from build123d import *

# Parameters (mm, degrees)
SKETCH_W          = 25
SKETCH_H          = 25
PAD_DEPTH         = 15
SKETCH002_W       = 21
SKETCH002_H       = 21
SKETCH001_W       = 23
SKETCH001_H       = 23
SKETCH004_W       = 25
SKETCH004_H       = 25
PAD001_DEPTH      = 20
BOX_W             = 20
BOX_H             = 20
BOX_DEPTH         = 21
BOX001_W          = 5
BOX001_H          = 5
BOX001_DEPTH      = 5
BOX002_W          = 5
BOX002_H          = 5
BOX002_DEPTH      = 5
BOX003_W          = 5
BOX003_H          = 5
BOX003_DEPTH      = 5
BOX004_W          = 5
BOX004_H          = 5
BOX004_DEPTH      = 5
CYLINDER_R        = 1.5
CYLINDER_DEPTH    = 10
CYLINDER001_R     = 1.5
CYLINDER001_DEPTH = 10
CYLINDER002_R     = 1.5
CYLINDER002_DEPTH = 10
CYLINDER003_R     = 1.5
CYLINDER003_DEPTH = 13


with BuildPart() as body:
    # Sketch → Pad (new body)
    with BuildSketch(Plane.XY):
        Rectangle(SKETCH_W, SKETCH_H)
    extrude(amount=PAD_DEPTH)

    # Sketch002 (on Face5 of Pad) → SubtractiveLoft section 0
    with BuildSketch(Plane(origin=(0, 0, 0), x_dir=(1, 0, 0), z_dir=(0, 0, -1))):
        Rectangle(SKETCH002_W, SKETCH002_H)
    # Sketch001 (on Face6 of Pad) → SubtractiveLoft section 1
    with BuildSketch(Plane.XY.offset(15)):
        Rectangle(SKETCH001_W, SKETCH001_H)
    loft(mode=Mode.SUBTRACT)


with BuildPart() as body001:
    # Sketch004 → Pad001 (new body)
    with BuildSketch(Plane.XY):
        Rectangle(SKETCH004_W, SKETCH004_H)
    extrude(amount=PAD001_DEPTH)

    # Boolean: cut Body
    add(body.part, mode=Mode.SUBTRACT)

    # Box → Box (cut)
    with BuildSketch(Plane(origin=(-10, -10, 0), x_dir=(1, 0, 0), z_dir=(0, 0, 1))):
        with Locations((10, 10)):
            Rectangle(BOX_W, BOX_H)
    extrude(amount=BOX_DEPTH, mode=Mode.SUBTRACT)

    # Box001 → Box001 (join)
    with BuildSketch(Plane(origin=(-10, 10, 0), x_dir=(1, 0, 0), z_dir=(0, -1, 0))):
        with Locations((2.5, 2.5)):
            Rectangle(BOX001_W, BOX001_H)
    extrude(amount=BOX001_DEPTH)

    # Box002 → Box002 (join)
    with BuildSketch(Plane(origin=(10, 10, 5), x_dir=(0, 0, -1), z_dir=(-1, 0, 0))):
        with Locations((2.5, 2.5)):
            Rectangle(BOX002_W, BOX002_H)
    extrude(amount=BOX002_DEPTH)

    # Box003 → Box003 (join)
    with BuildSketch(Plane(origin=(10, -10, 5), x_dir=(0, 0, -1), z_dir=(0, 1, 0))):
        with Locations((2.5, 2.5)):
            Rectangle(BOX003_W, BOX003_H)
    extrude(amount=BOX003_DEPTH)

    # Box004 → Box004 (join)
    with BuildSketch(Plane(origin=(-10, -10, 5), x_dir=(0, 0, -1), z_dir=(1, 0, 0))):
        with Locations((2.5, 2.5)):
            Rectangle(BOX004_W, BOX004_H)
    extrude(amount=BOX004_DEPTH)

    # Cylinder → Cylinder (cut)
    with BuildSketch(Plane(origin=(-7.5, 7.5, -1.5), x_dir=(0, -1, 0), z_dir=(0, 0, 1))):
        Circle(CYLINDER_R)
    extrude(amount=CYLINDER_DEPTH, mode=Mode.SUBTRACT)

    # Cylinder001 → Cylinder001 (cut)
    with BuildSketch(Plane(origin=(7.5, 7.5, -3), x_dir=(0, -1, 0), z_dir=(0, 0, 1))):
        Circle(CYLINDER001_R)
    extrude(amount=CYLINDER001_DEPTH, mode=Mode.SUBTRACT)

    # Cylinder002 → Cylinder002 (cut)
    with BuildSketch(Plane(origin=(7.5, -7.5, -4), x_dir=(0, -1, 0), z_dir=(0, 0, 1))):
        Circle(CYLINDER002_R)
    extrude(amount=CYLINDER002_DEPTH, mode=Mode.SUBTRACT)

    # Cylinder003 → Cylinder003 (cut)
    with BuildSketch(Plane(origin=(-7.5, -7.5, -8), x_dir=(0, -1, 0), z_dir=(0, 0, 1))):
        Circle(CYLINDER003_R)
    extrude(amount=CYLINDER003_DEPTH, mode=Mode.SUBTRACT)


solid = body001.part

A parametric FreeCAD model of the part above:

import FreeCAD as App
import Part
import Sketcher

doc = App.newDocument("Part")
body = doc.addObject("PartDesign::Body", "Body")

# Sketch on XY plane
sketch1 = body.newObject("Sketcher::SketchObject", "Sketch")
sketch1.AttachmentSupport = (doc.getObject("XY_Plane"), [""])
sketch1.MapMode = "FlatFace"
sketch1.addGeometry([
    Part.LineSegment(App.Vector(-12, 12, 0), App.Vector(-12, -12, 0)),
    Part.LineSegment(App.Vector(-12, -12, 0), App.Vector(12, -12, 0)),
    Part.LineSegment(App.Vector(12, -12, 0), App.Vector(12, 12, 0)),
    Part.LineSegment(App.Vector(12, 12, 0), App.Vector(-12, 12, 0)),
], False)
sketch1.addConstraint([
    Sketcher.Constraint("Coincident", 0, 2, 1, 1),
    Sketcher.Constraint("Coincident", 1, 2, 2, 1),
    Sketcher.Constraint("Coincident", 2, 2, 3, 1),
    Sketcher.Constraint("Coincident", 3, 2, 0, 1),
    Sketcher.Constraint("Vertical", 0),
    Sketcher.Constraint("Horizontal", 1),
    Sketcher.Constraint("Vertical", 2),
    Sketcher.Constraint("Horizontal", 3),
    Sketcher.Constraint("Symmetric", 0, 2, 2, 2, -1, 1),
    Sketcher.Constraint("Equal", 3, 0),
    Sketcher.Constraint("DistanceX", 1, 1, 1, 2, 25.0),
])
pad1 = body.newObject("PartDesign::Pad", "Pad")
pad1.Profile = sketch1
pad1.Length = 15

# Sketch on XY plane
sketch2 = body.newObject("Sketcher::SketchObject", "Sketch001")
sketch2.AttachmentSupport = (doc.getObject("XY_Plane"), [""])
sketch2.MapMode = "FlatFace"
sketch2.addGeometry([
    Part.LineSegment(App.Vector(-10, -10, 0), App.Vector(-10, 10, 0)),
    Part.LineSegment(App.Vector(-10, 10, 0), App.Vector(10, 10, 0)),
    Part.LineSegment(App.Vector(10, 10, 0), App.Vector(10, -10, 0)),
    Part.LineSegment(App.Vector(10, -10, 0), App.Vector(-10, -10, 0)),
], False)
sketch2.addConstraint([
    Sketcher.Constraint("Coincident", 0, 2, 1, 1),
    Sketcher.Constraint("Coincident", 1, 2, 2, 1),
    Sketcher.Constraint("Coincident", 2, 2, 3, 1),
    Sketcher.Constraint("Coincident", 3, 2, 0, 1),
    Sketcher.Constraint("Vertical", 0),
    Sketcher.Constraint("Horizontal", 1),
    Sketcher.Constraint("Vertical", 2),
    Sketcher.Constraint("Horizontal", 3),
    Sketcher.Constraint("Symmetric", 0, 2, 2, 2, -1, 1),
    Sketcher.Constraint("Equal", 3, 0),
    Sketcher.Constraint("DistanceX", 1, 1, 1, 2, 21.0),
])

# Sketch on XY plane
sketch3 = body.newObject("Sketcher::SketchObject", "Sketch002")
sketch3.AttachmentSupport = (doc.getObject("XY_Plane"), [""])
sketch3.MapMode = "FlatFace"
sketch3.AttachmentOffset = App.Placement(App.Vector(0, 0, 15), App.Rotation())
sketch3.addGeometry([
    Part.LineSegment(App.Vector(-12, 12, 0), App.Vector(-12, -12, 0)),
    Part.LineSegment(App.Vector(-12, -12, 0), App.Vector(12, -12, 0)),
    Part.LineSegment(App.Vector(12, -12, 0), App.Vector(12, 12, 0)),
    Part.LineSegment(App.Vector(12, 12, 0), App.Vector(-12, 12, 0)),
], False)
sketch3.addConstraint([
    Sketcher.Constraint("Coincident", 0, 2, 1, 1),
    Sketcher.Constraint("Coincident", 1, 2, 2, 1),
    Sketcher.Constraint("Coincident", 2, 2, 3, 1),
    Sketcher.Constraint("Coincident", 3, 2, 0, 1),
    Sketcher.Constraint("Vertical", 0),
    Sketcher.Constraint("Horizontal", 1),
    Sketcher.Constraint("Vertical", 2),
    Sketcher.Constraint("Horizontal", 3),
    Sketcher.Constraint("Symmetric", 0, 2, 2, 2, -1, 1),
    Sketcher.Constraint("Equal", 3, 0),
    Sketcher.Constraint("DistanceX", 1, 1, 1, 2, 23.0),
])

subtractiveloft = body.newObject("PartDesign::SubtractiveLoft", "SubtractiveLoft")
subtractiveloft.Profile = sketch2
subtractiveloft.Sections = [sketch3]
body2 = doc.addObject("PartDesign::Body", "Body001")

# Sketch on XY plane
sketch4 = body2.newObject("Sketcher::SketchObject", "Sketch003")
sketch4.AttachmentSupport = (doc.getObject("XY_Plane001"), [""])
sketch4.MapMode = "FlatFace"
sketch4.addGeometry([
    Part.LineSegment(App.Vector(-12, 12, 0), App.Vector(-12, -12, 0)),
    Part.LineSegment(App.Vector(-12, -12, 0), App.Vector(12, -12, 0)),
    Part.LineSegment(App.Vector(12, -12, 0), App.Vector(12, 12, 0)),
    Part.LineSegment(App.Vector(12, 12, 0), App.Vector(-12, 12, 0)),
], False)
sketch4.addConstraint([
    Sketcher.Constraint("Coincident", 0, 2, 1, 1),
    Sketcher.Constraint("Coincident", 1, 2, 2, 1),
    Sketcher.Constraint("Coincident", 2, 2, 3, 1),
    Sketcher.Constraint("Coincident", 3, 2, 0, 1),
    Sketcher.Constraint("Vertical", 0),
    Sketcher.Constraint("Horizontal", 1),
    Sketcher.Constraint("Vertical", 2),
    Sketcher.Constraint("Horizontal", 3),
    Sketcher.Constraint("Symmetric", 0, 2, 2, 2, -1, 1),
    Sketcher.Constraint("Equal", 3, 0),
    Sketcher.Constraint("DistanceX", 1, 1, 1, 2, 25.0),
])
pad2 = body2.newObject("PartDesign::Pad", "Pad001")
pad2.Profile = sketch4
pad2.Length = 20
doc.recompute()

boolean = body2.newObject("PartDesign::Boolean", "Boolean")
boolean.Type = "Cut"
boolean.addObjects([body])

# Sketch on XY plane
sketch5 = body2.newObject("Sketcher::SketchObject", "Sketch004")
sketch5.AttachmentSupport = (doc.getObject("XY_Plane001"), [""])
sketch5.MapMode = "FlatFace"
sketch5.addGeometry([
    Part.LineSegment(App.Vector(-10, 10, 0), App.Vector(-10, -10, 0)),
    Part.LineSegment(App.Vector(-10, -10, 0), App.Vector(10, -10, 0)),
    Part.LineSegment(App.Vector(10, -10, 0), App.Vector(10, 10, 0)),
    Part.LineSegment(App.Vector(10, 10, 0), App.Vector(-10, 10, 0)),
], False)
sketch5.addConstraint([
    Sketcher.Constraint("Coincident", 0, 2, 1, 1),
    Sketcher.Constraint("Coincident", 1, 2, 2, 1),
    Sketcher.Constraint("Coincident", 2, 2, 3, 1),
    Sketcher.Constraint("Coincident", 3, 2, 0, 1),
    Sketcher.Constraint("Vertical", 0),
    Sketcher.Constraint("Horizontal", 1),
    Sketcher.Constraint("Vertical", 2),
    Sketcher.Constraint("Horizontal", 3),
    Sketcher.Constraint("Symmetric", 0, 2, 2, 2, -1, 1),
    Sketcher.Constraint("Equal", 3, 0),
    Sketcher.Constraint("DistanceX", 1, 1, 1, 2, 20.0),
])
pocket1 = body2.newObject("PartDesign::Pocket", "Pocket")
pocket1.Profile = sketch5
pocket1.Length = 21
pocket1.Reversed = True

# Sketch on XZ plane
sketch6 = body2.newObject("Sketcher::SketchObject", "Sketch005")
sketch6.AttachmentSupport = (doc.getObject("XZ_Plane001"), [""])
sketch6.MapMode = "FlatFace"
sketch6.AttachmentOffset = App.Placement(App.Vector(0, 0, -10), App.Rotation())
sketch6.addGeometry([
    Part.LineSegment(App.Vector(-10, 5, 0), App.Vector(-10, 0, 0)),
    Part.LineSegment(App.Vector(-10, 0, 0), App.Vector(-5, 0, 0)),
    Part.LineSegment(App.Vector(-5, 0, 0), App.Vector(-5, 5, 0)),
    Part.LineSegment(App.Vector(-5, 5, 0), App.Vector(-10, 5, 0)),
], False)
sketch6.addConstraint([
    Sketcher.Constraint("Coincident", 0, 2, 1, 1),
    Sketcher.Constraint("Coincident", 1, 2, 2, 1),
    Sketcher.Constraint("Coincident", 2, 2, 3, 1),
    Sketcher.Constraint("Coincident", 3, 2, 0, 1),
    Sketcher.Constraint("Vertical", 0),
    Sketcher.Constraint("Horizontal", 1),
    Sketcher.Constraint("Vertical", 2),
    Sketcher.Constraint("Horizontal", 3),
    Sketcher.Constraint("PointOnObject", 0, 2, -1),
    Sketcher.Constraint("Equal", 3, 0),
    Sketcher.Constraint("DistanceX", 1, 1, 1, 2, 5.0),
    Sketcher.Constraint("DistanceX", 0, 2, -1, 1, 10.0),
])
pad3 = body2.newObject("PartDesign::Pad", "Pad002")
pad3.Profile = sketch6
pad3.Length = 5

# Sketch on YZ plane
sketch7 = body2.newObject("Sketcher::SketchObject", "Sketch006")
sketch7.AttachmentSupport = (doc.getObject("YZ_Plane001"), [""])
sketch7.MapMode = "FlatFace"
sketch7.AttachmentOffset = App.Placement(App.Vector(0, 0, 10), App.Rotation())
sketch7.addGeometry([
    Part.LineSegment(App.Vector(5, 5, 0), App.Vector(10, 5, 0)),
    Part.LineSegment(App.Vector(10, 5, 0), App.Vector(10, 0, 0)),
    Part.LineSegment(App.Vector(10, 0, 0), App.Vector(5, 0, 0)),
    Part.LineSegment(App.Vector(5, 0, 0), App.Vector(5, 5, 0)),
], False)
sketch7.addConstraint([
    Sketcher.Constraint("Coincident", 0, 2, 1, 1),
    Sketcher.Constraint("Coincident", 1, 2, 2, 1),
    Sketcher.Constraint("Coincident", 2, 2, 3, 1),
    Sketcher.Constraint("Coincident", 3, 2, 0, 1),
    Sketcher.Constraint("Horizontal", 0),
    Sketcher.Constraint("Vertical", 1),
    Sketcher.Constraint("Horizontal", 2),
    Sketcher.Constraint("Vertical", 3),
    Sketcher.Constraint("PointOnObject", 1, 2, -1),
    Sketcher.Constraint("Equal", 2, 1),
    Sketcher.Constraint("DistanceX", 0, 1, 0, 2, 5.0),
    Sketcher.Constraint("DistanceX", -1, 1, 0, 2, 10.0),
])
pad4 = body2.newObject("PartDesign::Pad", "Pad003")
pad4.Profile = sketch7
pad4.Length = 5
pad4.Reversed = True

# Sketch on XZ plane
sketch8 = body2.newObject("Sketcher::SketchObject", "Sketch007")
sketch8.AttachmentSupport = (doc.getObject("XZ_Plane001"), [""])
sketch8.MapMode = "FlatFace"
sketch8.AttachmentOffset = App.Placement(App.Vector(0, 0, 10), App.Rotation())
sketch8.addGeometry([
    Part.LineSegment(App.Vector(5, 5, 0), App.Vector(10, 5, 0)),
    Part.LineSegment(App.Vector(10, 5, 0), App.Vector(10, 0, 0)),
    Part.LineSegment(App.Vector(10, 0, 0), App.Vector(5, 0, 0)),
    Part.LineSegment(App.Vector(5, 0, 0), App.Vector(5, 5, 0)),
], False)
sketch8.addConstraint([
    Sketcher.Constraint("Coincident", 0, 2, 1, 1),
    Sketcher.Constraint("Coincident", 1, 2, 2, 1),
    Sketcher.Constraint("Coincident", 2, 2, 3, 1),
    Sketcher.Constraint("Coincident", 3, 2, 0, 1),
    Sketcher.Constraint("Horizontal", 0),
    Sketcher.Constraint("Vertical", 1),
    Sketcher.Constraint("Horizontal", 2),
    Sketcher.Constraint("Vertical", 3),
    Sketcher.Constraint("PointOnObject", 1, 2, -1),
    Sketcher.Constraint("Equal", 2, 1),
    Sketcher.Constraint("DistanceX", 0, 1, 0, 2, 5.0),
    Sketcher.Constraint("DistanceX", -1, 1, 0, 2, 10.0),
])
pad5 = body2.newObject("PartDesign::Pad", "Pad004")
pad5.Profile = sketch8
pad5.Length = 5
pad5.Reversed = True

# Sketch on YZ plane
sketch9 = body2.newObject("Sketcher::SketchObject", "Sketch008")
sketch9.AttachmentSupport = (doc.getObject("YZ_Plane001"), [""])
sketch9.MapMode = "FlatFace"
sketch9.AttachmentOffset = App.Placement(App.Vector(0, 0, -10), App.Rotation())
sketch9.addGeometry([
    Part.LineSegment(App.Vector(-5, 5, 0), App.Vector(-10, 5, 0)),
    Part.LineSegment(App.Vector(-10, 5, 0), App.Vector(-10, 0, 0)),
    Part.LineSegment(App.Vector(-10, 0, 0), App.Vector(-5, 0, 0)),
    Part.LineSegment(App.Vector(-5, 0, 0), App.Vector(-5, 5, 0)),
], False)
sketch9.addConstraint([
    Sketcher.Constraint("Coincident", 0, 2, 1, 1),
    Sketcher.Constraint("Coincident", 1, 2, 2, 1),
    Sketcher.Constraint("Coincident", 2, 2, 3, 1),
    Sketcher.Constraint("Coincident", 3, 2, 0, 1),
    Sketcher.Constraint("Horizontal", 0),
    Sketcher.Constraint("Vertical", 1),
    Sketcher.Constraint("Horizontal", 2),
    Sketcher.Constraint("Vertical", 3),
    Sketcher.Constraint("PointOnObject", 1, 2, -1),
    Sketcher.Constraint("Equal", 2, 1),
    Sketcher.Constraint("DistanceX", 0, 2, 0, 1, 5.0),
    Sketcher.Constraint("DistanceX", 0, 2, -1, 1, 10.0),
])
pad6 = body2.newObject("PartDesign::Pad", "Pad005")
pad6.Profile = sketch9
pad6.Length = 5

# Sketch on XY plane
sketch10 = body2.newObject("Sketcher::SketchObject", "Sketch009")
sketch10.AttachmentSupport = (doc.getObject("XY_Plane001"), [""])
sketch10.MapMode = "FlatFace"
sketch10.AttachmentOffset = App.Placement(App.Vector(0, 0, -1.5), App.Rotation())
sketch10.addGeometry(Part.Circle(App.Vector(-7.5, 7.5, 0), App.Vector(0, 0, 1), 1.5), False)
sketch10.addConstraint([
    Sketcher.Constraint("Diameter", 0, 3.0),
    Sketcher.Constraint("DistanceX", 0, 3, -1, 1, 7.5),
    Sketcher.Constraint("DistanceY", -1, 1, 0, 3, 7.5),
])
pocket2 = body2.newObject("PartDesign::Pocket", "Pocket001")
pocket2.Profile = sketch10
pocket2.Length = 10
pocket2.Reversed = True

# Sketch on XY plane
sketch11 = body2.newObject("Sketcher::SketchObject", "Sketch010")
sketch11.AttachmentSupport = (doc.getObject("XY_Plane001"), [""])
sketch11.MapMode = "FlatFace"
sketch11.AttachmentOffset = App.Placement(App.Vector(0, 0, -3), App.Rotation())
sketch11.addGeometry(Part.Circle(App.Vector(7.5, 7.5, 0), App.Vector(0, 0, 1), 1.5), False)
sketch11.addConstraint([
    Sketcher.Constraint("Diameter", 0, 3.0),
    Sketcher.Constraint("DistanceX", -1, 1, 0, 3, 7.5),
    Sketcher.Constraint("DistanceY", -1, 1, 0, 3, 7.5),
])
pocket3 = body2.newObject("PartDesign::Pocket", "Pocket002")
pocket3.Profile = sketch11
pocket3.Length = 10
pocket3.Reversed = True

# Sketch on XY plane
sketch12 = body2.newObject("Sketcher::SketchObject", "Sketch011")
sketch12.AttachmentSupport = (doc.getObject("XY_Plane001"), [""])
sketch12.MapMode = "FlatFace"
sketch12.AttachmentOffset = App.Placement(App.Vector(0, 0, -4), App.Rotation())
sketch12.addGeometry(Part.Circle(App.Vector(7.5, -7.5, 0), App.Vector(0, 0, 1), 1.5), False)
sketch12.addConstraint([
    Sketcher.Constraint("Diameter", 0, 3.0),
    Sketcher.Constraint("DistanceX", -1, 1, 0, 3, 7.5),
    Sketcher.Constraint("DistanceY", 0, 3, -1, 1, 7.5),
])
pocket4 = body2.newObject("PartDesign::Pocket", "Pocket003")
pocket4.Profile = sketch12
pocket4.Length = 10
pocket4.Reversed = True

# Sketch on XY plane
sketch13 = body2.newObject("Sketcher::SketchObject", "Sketch012")
sketch13.AttachmentSupport = (doc.getObject("XY_Plane001"), [""])
sketch13.MapMode = "FlatFace"
sketch13.AttachmentOffset = App.Placement(App.Vector(0, 0, -8), App.Rotation())
sketch13.addGeometry(Part.Circle(App.Vector(-7.5, -7.5, 0), App.Vector(0, 0, 1), 1.5), False)
sketch13.addConstraint([
    Sketcher.Constraint("Diameter", 0, 3.0),
    Sketcher.Constraint("DistanceX", 0, 3, -1, 1, 7.5),
    Sketcher.Constraint("DistanceY", 0, 3, -1, 1, 7.5),
])
pocket5 = body2.newObject("PartDesign::Pocket", "Pocket004")
pocket5.Profile = sketch13
pocket5.Length = 13
pocket5.Reversed = True

doc.recompute()
